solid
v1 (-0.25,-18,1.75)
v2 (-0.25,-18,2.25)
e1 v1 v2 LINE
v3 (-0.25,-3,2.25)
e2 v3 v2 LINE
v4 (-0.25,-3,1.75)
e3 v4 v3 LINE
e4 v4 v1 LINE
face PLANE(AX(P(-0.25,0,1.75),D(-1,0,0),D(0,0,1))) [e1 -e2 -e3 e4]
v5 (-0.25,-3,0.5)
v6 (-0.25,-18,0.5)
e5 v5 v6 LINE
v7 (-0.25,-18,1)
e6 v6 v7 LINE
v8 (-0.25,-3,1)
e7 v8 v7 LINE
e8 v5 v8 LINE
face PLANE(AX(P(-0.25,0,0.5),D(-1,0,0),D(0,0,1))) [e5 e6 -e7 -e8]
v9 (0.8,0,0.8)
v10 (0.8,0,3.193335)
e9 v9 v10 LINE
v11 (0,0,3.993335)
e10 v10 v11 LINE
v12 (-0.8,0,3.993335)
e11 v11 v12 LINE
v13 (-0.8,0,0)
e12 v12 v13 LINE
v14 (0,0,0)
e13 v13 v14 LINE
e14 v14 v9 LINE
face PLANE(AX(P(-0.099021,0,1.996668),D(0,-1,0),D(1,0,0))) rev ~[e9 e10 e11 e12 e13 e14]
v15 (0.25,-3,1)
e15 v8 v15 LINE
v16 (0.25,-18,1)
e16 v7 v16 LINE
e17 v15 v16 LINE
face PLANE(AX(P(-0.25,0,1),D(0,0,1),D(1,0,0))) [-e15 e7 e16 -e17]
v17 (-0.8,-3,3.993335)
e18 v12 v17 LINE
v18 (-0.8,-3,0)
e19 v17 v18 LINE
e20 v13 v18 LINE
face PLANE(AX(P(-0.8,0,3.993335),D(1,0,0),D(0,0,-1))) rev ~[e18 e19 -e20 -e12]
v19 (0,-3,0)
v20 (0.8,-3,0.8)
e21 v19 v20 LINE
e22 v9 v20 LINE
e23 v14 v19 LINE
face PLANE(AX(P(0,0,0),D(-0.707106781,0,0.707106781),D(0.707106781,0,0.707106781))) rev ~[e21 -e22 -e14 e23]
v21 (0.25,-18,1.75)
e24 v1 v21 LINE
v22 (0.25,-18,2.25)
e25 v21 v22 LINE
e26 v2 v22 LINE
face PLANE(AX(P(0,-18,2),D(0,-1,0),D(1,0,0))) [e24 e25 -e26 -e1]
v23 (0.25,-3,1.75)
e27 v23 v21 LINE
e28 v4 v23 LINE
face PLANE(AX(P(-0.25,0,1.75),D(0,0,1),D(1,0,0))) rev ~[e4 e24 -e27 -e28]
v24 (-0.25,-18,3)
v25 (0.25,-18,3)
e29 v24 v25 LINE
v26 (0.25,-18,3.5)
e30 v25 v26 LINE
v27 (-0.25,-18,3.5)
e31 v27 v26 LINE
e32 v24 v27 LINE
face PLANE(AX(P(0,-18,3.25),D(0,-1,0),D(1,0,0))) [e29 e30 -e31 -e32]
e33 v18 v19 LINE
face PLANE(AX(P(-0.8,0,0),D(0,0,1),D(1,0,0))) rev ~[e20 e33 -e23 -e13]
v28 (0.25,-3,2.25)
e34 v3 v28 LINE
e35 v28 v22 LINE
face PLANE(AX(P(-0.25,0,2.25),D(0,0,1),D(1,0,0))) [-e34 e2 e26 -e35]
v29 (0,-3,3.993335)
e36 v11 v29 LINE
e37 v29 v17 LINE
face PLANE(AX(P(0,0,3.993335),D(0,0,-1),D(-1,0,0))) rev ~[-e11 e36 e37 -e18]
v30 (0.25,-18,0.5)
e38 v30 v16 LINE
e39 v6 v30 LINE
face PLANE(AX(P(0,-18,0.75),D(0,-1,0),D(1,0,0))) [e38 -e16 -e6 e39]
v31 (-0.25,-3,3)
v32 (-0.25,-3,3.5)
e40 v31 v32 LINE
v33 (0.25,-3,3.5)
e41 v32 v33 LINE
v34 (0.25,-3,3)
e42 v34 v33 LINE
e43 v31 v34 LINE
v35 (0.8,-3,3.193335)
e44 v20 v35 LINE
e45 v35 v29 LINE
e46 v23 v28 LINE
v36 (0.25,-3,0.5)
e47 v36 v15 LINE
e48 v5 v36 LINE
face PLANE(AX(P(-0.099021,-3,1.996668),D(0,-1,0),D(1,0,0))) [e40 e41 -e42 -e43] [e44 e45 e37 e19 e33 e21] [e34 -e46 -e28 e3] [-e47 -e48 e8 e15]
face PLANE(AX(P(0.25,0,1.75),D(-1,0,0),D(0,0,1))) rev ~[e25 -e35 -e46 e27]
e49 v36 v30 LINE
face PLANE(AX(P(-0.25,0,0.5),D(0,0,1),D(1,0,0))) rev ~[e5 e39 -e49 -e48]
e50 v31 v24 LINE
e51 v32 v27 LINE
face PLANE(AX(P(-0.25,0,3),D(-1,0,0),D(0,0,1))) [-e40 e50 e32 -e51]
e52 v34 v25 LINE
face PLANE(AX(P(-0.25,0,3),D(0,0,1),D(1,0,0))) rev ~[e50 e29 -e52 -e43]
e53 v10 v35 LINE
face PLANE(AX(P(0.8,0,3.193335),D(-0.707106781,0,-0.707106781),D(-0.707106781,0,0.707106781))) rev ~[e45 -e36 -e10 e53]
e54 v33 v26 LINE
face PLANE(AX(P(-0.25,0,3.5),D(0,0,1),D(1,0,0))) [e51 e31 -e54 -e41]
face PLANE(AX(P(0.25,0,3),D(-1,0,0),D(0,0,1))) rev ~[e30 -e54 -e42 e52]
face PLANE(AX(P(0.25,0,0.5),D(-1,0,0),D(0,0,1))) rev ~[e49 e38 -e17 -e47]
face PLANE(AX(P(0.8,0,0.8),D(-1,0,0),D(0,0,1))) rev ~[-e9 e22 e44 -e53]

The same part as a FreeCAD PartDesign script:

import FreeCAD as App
import Part
import Sketcher

V = App.Vector
Q = App.Units.Quantity

doc = App.newDocument("Part")
body = doc.addObject("PartDesign::Body", "Body")

sketch1 = body.newObject("Sketcher::SketchObject", "Sketch")
sketch1.AttachmentSupport = (doc.getObject("XZ_Plane"), [""])
sketch1.MapMode = "FlatFace"
sketch1.addGeometry([
    Part.LineSegment(V(-0.8, 0, 0), V(0, 0, 0)),
    Part.LineSegment(V(0, 0, 0), V(0.8, 0.8, 0)),
    Part.LineSegment(V(0.8, 0.8, 0), V(0.8, 3.2, 0)),
    Part.LineSegment(V(0.8, 3.2, 0), V(0, 4, 0)),
    Part.LineSegment(V(0, 4, 0), V(-0.8, 4, 0)),
    Part.LineSegment(V(-0.8, 4, 0), V(-0.8, 0, 0)),
    Part.LineSegment(V(0.2, 0.5, 0), V(-0.2, 0.5, 0)),
    Part.LineSegment(V(-0.2, 0.5, 0), V(-0.2, 1, 0)),
    Part.LineSegment(V(-0.2, 1, 0), V(0.2, 1, 0)),
    Part.LineSegment(V(0.2, 1, 0), V(0.2, 0.5, 0)),
    Part.LineSegment(V(0.2, 1.8, 0), V(-0.2, 1.8, 0)),
    Part.LineSegment(V(-0.2, 1.8, 0), V(-0.2, 2.2, 0)),
    Part.LineSegment(V(-0.2, 2.2, 0), V(0.2, 2.2, 0)),
    Part.LineSegment(V(0.2, 2.2, 0), V(0.2, 1.8, 0)),
    Part.LineSegment(V(0.2, 3, 0), V(-0.2, 3, 0)),
    Part.LineSegment(V(-0.2, 3, 0), V(-0.2, 3.5, 0)),
    Part.LineSegment(V(-0.2, 3.5, 0), V(0.2, 3.5, 0)),
    Part.LineSegment(V(0.2, 3.5, 0), V(0.2, 3, 0)),
], False)
sketch1.addConstraint([
    Sketcher.Constraint("Coincident", 0, 2, 1, 1),
    Sketcher.Constraint("Coincident", 1, 2, 2, 1),
    Sketcher.Constraint("Coincident", 2, 2, 3, 1),
    Sketcher.Constraint("Coincident", 3, 2, 4, 1),
    Sketcher.Constraint("Coincident", 4, 2, 5, 1),
    Sketcher.Constraint("Coincident", 5, 2, 0, 1),
    Sketcher.Constraint("Coincident", 6, 2, 7, 1),
    Sketcher.Constraint("Coincident", 7, 2, 8, 1),
    Sketcher.Constraint("Coincident", 8, 2, 9, 1),
    Sketcher.Constraint("Coincident", 9, 2, 6, 1),
    Sketcher.Constraint("Coincident", 10, 2, 11, 1),
    Sketcher.Constraint("Coincident", 11, 2, 12, 1),
    Sketcher.Constraint("Coincident", 12, 2, 13, 1),
    Sketcher.Constraint("Coincident", 13, 2, 10, 1),
    Sketcher.Constraint("Coincident", 14, 2, 15, 1),
    Sketcher.Constraint("Coincident", 15, 2, 16, 1),
    Sketcher.Constraint("Coincident", 16, 2, 17, 1),
    Sketcher.Constraint("Coincident", 17, 2, 14, 1),
    Sketcher.Constraint("Horizontal", 0),
    Sketcher.Constraint("Vertical", 2),
    Sketcher.Constraint("Horizontal", 4),
    Sketcher.Constraint("Vertical", 5),
    Sketcher.Constraint("Horizontal", 6),
    Sketcher.Constraint("Vertical", 7),
    Sketcher.Constraint("Horizontal", 8),
    Sketcher.Constraint("Vertical", 9),
    Sketcher.Constraint("Horizontal", 10),
    Sketcher.Constraint("Vertical", 11),
    Sketcher.Constraint("Horizontal", 12),
    Sketcher.Constraint("Vertical", 13),
    Sketcher.Constraint("Horizontal", 14),
    Sketcher.Constraint("Vertical", 15),
    Sketcher.Constraint("Horizontal", 16),
    Sketcher.Constraint("Vertical", 17),
    Sketcher.Constraint("Coincident", 0, 2, -1, 1),
    Sketcher.Constraint("PointOnObject", 3, 2, -2),
    Sketcher.Constraint("Perpendicular", 1, 3),
    Sketcher.Constraint("Vertical", 7, 2, 10, 2),
    Sketcher.Constraint("Vertical", 9, 2, 12, 2),
    Sketcher.Constraint("Vertical", 11, 2, 14, 2),
    Sketcher.Constraint("Vertical", 13, 2, 16, 2),
    Sketcher.Constraint("Equal", 16, 7),
    Sketcher.Constraint("Equal", 9, 11),
    Sketcher.Constraint("Equal", 13, 15),
    Sketcher.Constraint("Equal", 1, 3),
    Sketcher.Constraint("DistanceX", 0, 1, 0, 2, Q("0.8 mm")),
    Sketcher.Constraint("DistanceX", 6, 2, 6, 1, Q("0.5 mm")),
    Sketcher.Constraint("DistanceY", -1, 1, 7, 2, Q("1 mm")),
    Sketcher.Constraint("DistanceY", -1, 1, 14, 2, Q("3 mm")),
    Sketcher.Constraint("DistanceX", -1, 1, 1, 2, Q("0.8 mm")),
    Sketcher.Constraint("DistanceX", 6, 2, -1, 1, Q("0.25 mm")),
    Sketcher.Constraint("DistanceY", -1, 1, 10, 2, Q("1.75 mm")),
    Sketcher.Constraint("DistanceY", 2, 1, 2, 2, Q("2.393335 mm")),
])
pad1 = body.newObject("PartDesign::Pad", "Pad")
pad1.Profile = sketch1
pad1.Length = 3

sketch2 = body.newObject("Sketcher::SketchObject", "Sketch001")
sketch2.AttachmentSupport = (doc.getObject("XZ_Plane"), [""])
sketch2.MapMode = "FlatFace"
sketch2.addGeometry([
    Part.LineSegment(V(-0.2, 3.5, 0), V(-0.2, 3, 0)),
    Part.LineSegment(V(-0.2, 3, 0), V(0.2, 3, 0)),
    Part.LineSegment(V(0.2, 3, 0), V(0.2, 3.5, 0)),
    Part.LineSegment(V(0.2, 3.5, 0), V(-0.2, 3.5, 0)),
    Part.LineSegment(V(-0.2, 2.2, 0), V(-0.2, 1.8, 0)),
    Part.LineSegment(V(-0.2, 1.8, 0), V(0.2, 1.8, 0)),
    Part.LineSegment(V(0.2, 1.8, 0), V(0.2, 2.2, 0)),
    Part.LineSegment(V(0.2, 2.2, 0), V(-0.2, 2.2, 0)),
    Part.LineSegment(V(-0.2, 1, 0), V(-0.2, 0.5, 0)),
    Part.LineSegment(V(-0.2, 0.5, 0), V(0.2, 0.5, 0)),
    Part.LineSegment(V(0.2, 0.5, 0), V(0.2, 1, 0)),
    Part.LineSegment(V(0.2, 1, 0), V(-0.2, 1, 0)),
], False)
sketch2.addConstraint([
    Sketcher.Constraint("Coincident", 0, 2, 1, 1),
    Sketcher.Constraint("Coincident", 1, 2, 2, 1),
    Sketcher.Constraint("Coincident", 2, 2, 3, 1),
    Sketcher.Constraint("Coincident", 3, 2, 0, 1),
    Sketcher.Constraint("Coincident", 4, 2, 5, 1),
    Sketcher.Constraint("Coincident", 5, 2, 6, 1),
    Sketcher.Constraint("Coincident", 6, 2, 7, 1),
    Sketcher.Constraint("Coincident", 7, 2, 4, 1),
    Sketcher.Constraint("Coincident", 8, 2, 9, 1),
    Sketcher.Constraint("Coincident", 9, 2, 10, 1),
    Sketcher.Constraint("Coincident", 10, 2, 11, 1),
    Sketcher.Constraint("Coincident", 11, 2, 8, 1),
    Sketcher.Constraint("Vertical", 0),
    Sketcher.Constraint("Horizontal", 1),
    Sketcher.Constraint("Vertical", 2),
    Sketcher.Constraint("Horizontal", 3),
    Sketcher.Constraint("Vertical", 4),
    Sketcher.Constraint("Horizontal", 5),
    Sketcher.Constraint("Vertical", 6),
    Sketcher.Constraint("Horizontal", 7),
    Sketcher.Constraint("Vertical", 8),
    Sketcher.Constraint("Horizontal", 9),
    Sketcher.Constraint("Vertical", 10),
    Sketcher.Constraint("Horizontal", 11),
    Sketcher.Constraint("Vertical", 3, 2, 4, 2),
    Sketcher.Constraint("Vertical", 2, 2, 5, 2),
    Sketcher.Constraint("Vertical", 7, 2, 8, 2),
    Sketcher.Constraint("Vertical", 6, 2, 9, 2),
    Sketcher.Constraint("Equal", 11, 0),
    Sketcher.Constraint("Equal", 2, 4),
    Sketcher.Constraint("Equal", 6, 8),
    Sketcher.Constraint("DistanceX", 1, 1, 1, 2, Q("0.5 mm")),
    Sketcher.Constraint("DistanceY", -1, 1, 0, 2, Q("3 mm")),
    Sketcher.Constraint("DistanceY", -1, 1, 10, 2, Q("1 mm")),
    Sketcher.Constraint("DistanceX", 0, 2, -1, 1, Q("0.25 mm")),
    Sketcher.Constraint("DistanceY", -1, 1, 4, 2, Q("1.75 mm")),
])
pad2 = body.newObject("PartDesign::Pad", "Pad001")
pad2.Profile = sketch2
pad2.Length = 18

doc.recompute()
